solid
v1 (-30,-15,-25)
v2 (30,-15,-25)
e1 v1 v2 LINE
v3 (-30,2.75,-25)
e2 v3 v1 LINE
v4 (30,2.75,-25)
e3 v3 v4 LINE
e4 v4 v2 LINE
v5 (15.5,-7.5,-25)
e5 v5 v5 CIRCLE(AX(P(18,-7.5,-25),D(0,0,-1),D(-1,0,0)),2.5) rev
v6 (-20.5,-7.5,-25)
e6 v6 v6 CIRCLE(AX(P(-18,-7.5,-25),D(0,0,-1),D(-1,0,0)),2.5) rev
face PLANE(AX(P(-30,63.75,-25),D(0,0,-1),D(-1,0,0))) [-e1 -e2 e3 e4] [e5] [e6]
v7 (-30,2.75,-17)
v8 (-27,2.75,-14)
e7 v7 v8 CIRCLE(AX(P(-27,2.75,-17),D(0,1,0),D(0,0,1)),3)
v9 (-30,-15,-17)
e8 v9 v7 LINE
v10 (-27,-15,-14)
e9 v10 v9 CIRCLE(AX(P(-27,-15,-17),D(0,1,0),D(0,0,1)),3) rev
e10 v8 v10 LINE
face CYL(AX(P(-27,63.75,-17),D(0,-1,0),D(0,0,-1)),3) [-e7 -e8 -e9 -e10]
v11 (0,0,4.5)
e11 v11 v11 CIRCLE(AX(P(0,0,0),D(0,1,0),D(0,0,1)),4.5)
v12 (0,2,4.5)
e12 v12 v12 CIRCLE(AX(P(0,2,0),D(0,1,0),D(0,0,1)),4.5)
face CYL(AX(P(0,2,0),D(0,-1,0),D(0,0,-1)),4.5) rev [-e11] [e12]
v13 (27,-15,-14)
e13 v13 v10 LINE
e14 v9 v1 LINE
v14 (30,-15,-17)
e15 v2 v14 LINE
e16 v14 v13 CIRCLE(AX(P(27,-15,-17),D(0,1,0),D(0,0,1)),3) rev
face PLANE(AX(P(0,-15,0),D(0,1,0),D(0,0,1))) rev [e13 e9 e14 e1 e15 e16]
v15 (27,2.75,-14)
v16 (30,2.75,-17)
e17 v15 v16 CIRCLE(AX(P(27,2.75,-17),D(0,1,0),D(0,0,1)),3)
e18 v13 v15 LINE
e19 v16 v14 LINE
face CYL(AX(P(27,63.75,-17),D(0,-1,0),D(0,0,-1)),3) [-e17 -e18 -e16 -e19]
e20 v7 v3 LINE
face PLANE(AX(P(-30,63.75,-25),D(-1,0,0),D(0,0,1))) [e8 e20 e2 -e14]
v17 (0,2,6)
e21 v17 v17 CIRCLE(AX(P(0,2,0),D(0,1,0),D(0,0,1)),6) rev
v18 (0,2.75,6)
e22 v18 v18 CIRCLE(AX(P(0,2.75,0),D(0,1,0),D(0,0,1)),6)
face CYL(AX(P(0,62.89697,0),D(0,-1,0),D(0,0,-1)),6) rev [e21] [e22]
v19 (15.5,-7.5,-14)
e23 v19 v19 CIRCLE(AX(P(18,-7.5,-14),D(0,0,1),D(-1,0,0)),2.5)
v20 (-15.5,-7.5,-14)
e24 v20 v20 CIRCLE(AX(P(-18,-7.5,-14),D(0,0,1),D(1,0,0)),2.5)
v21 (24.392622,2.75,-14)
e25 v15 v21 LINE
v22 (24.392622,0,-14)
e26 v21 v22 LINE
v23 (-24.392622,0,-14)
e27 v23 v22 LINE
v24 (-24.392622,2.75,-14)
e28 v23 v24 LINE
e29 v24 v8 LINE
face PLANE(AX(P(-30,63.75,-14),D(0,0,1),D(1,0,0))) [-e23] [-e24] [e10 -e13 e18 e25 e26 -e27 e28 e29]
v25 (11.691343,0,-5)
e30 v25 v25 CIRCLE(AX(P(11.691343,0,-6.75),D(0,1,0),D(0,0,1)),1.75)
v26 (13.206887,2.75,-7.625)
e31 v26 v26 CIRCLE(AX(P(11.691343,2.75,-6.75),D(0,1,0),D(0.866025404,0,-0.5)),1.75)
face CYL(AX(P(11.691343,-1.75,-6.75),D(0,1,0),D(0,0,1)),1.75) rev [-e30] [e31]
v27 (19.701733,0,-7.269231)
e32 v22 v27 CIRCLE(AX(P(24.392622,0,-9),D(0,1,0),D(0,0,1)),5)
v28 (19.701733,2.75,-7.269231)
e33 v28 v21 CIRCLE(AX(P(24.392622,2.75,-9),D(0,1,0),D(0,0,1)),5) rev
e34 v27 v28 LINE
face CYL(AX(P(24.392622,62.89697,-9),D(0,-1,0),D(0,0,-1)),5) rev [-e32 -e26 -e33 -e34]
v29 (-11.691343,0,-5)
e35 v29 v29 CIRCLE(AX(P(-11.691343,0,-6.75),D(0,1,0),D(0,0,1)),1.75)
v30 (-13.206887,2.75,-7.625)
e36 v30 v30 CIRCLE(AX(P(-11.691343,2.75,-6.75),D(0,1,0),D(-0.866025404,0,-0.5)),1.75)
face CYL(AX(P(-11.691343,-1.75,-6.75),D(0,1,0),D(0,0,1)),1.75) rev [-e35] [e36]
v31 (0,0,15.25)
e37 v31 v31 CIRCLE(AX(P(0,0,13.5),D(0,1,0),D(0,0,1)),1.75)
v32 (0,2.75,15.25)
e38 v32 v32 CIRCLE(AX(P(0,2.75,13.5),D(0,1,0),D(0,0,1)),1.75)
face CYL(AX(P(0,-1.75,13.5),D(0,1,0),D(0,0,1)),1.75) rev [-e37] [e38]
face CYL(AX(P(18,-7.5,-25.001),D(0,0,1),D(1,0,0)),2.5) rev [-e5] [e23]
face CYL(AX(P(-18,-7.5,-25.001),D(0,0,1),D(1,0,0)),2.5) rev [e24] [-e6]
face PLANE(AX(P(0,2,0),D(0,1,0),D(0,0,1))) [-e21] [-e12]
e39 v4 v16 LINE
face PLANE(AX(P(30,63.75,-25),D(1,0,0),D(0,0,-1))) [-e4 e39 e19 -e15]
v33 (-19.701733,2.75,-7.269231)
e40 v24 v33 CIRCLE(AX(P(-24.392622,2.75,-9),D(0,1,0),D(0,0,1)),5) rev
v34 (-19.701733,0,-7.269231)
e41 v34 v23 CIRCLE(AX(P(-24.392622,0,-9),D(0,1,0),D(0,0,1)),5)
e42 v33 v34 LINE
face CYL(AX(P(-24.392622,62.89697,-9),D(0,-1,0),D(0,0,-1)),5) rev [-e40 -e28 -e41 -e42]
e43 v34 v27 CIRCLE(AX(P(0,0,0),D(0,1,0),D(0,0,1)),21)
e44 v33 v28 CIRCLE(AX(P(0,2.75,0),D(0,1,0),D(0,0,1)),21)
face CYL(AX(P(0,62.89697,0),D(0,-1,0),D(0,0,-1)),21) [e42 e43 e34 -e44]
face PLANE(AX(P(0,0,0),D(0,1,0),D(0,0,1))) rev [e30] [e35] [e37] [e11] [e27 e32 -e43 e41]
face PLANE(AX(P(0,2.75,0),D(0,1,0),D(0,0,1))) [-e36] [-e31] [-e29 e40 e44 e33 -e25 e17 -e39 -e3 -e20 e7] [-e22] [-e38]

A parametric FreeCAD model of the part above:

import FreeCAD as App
import Part
import Sketcher

V = App.Vector
Q = App.Units.Quantity


def edges_at(feature, points):
    """Names of the edges that pass closest to the given points."""
    edges = feature.Shape.Edges
    near = lambda p: min(range(len(edges)), key=lambda i: edges[i].distToShape(Part.Vertex(*p))[0])
    return sorted({f"Edge{near(p) + 1}" for p in points})

doc = App.newDocument("Part")
body = doc.addObject("PartDesign::Body", "Body")

# Sketch on XZ plane
sketch1 = body.newObject("Sketcher::SketchObject", "Sketch")
sketch1.AttachmentSupport = (doc.getObject("XZ_Plane"), [""])
sketch1.MapMode = "FlatFace"
sketch1.addGeometry([
    Part.Circle(V(0, 0, 0), V(0, 0, 1), 6),
    Part.Circle(V(0, 0, 0), V(0, 0, 1), 4.5),
], False)
sketch1.addConstraint([
    Sketcher.Constraint("Coincident", 0, 3, -1, 1),
    Sketcher.Constraint("Coincident", 1, 3, -1, 1),
    Sketcher.Constraint("Diameter", 0, Q("12 mm")),
    Sketcher.Constraint("Diameter", 1, Q("9 mm")),
])
pad1 = body.newObject("PartDesign::Pad", "Pad")
pad1.Profile = sketch1
pad1.Length = 2
pad1.Reversed = True

# Sketch on XZ plane
sketch2 = body.newObject("Sketcher::SketchObject", "Sketch001")
sketch2.AttachmentSupport = (doc.getObject("XZ_Plane"), [""])
sketch2.MapMode = "FlatFace"
sketch2.addGeometry([
    Part.Circle(V(0, 0, 0), V(0, 0, 1), 21),
    Part.Circle(V(0, 0, 0), V(0, 0, 1), 6),
], False)
sketch2.addConstraint([
    Sketcher.Constraint("Coincident", 0, 3, -1, 1),
    Sketcher.Constraint("Coincident", 1, 3, -1, 1),
    Sketcher.Constraint("Diameter", 0, Q("42 mm")),
    Sketcher.Constraint("Diameter", 1, Q("12 mm")),
])
pad2 = body.newObject("PartDesign::Pad", "Pad001")
pad2.Profile = sketch2
pad2.Length = 2.75
pad2.Reversed = True

# Sketch on XZ plane
sketch3 = body.newObject("Sketcher::SketchObject", "Sketch002")
sketch3.AttachmentSupport = (doc.getObject("XZ_Plane"), [""])
sketch3.MapMode = "FlatFace"
sketch3.AttachmentOffset = App.Placement(V(0, 0, -2.75), App.Rotation())
sketch3.addGeometry(Part.Circle(V(0, 13.5, 0), V(0, 0, 1), 1.8), False)
sketch3.addConstraint([
    Sketcher.Constraint("PointOnObject", 0, 3, -2),
    Sketcher.Constraint("Diameter", 0, Q("3.5 mm")),
    Sketcher.Constraint("DistanceY", -1, 1, 0, 3, Q("13.5 mm")),
])
pocket1 = body.newObject("PartDesign::Pocket", "Pocket")
pocket1.Profile = sketch3
pocket1.Length = 4.5
pocket1.Reversed = True
doc.recompute()

polarpattern = body.newObject("PartDesign::PolarPattern", "PolarPattern")
polarpattern.Originals = [pocket1]
polarpattern.Axis = (doc.getObject("Y_Axis"), [""])
polarpattern.Angle = 360
polarpattern.Occurrences = 3
body.Tip = polarpattern

# Sketch on XZ plane
sketch4 = body.newObject("Sketcher::SketchObject", "Sketch003")
sketch4.AttachmentSupport = (doc.getObject("XZ_Plane"), [""])
sketch4.MapMode = "FlatFace"
sketch4.addGeometry([
    Part.LineSegment(V(-30, -14, 0), V(-30, -25, 0)),
    Part.LineSegment(V(-30, -25, 0), V(30, -25, 0)),
    Part.LineSegment(V(30, -25, 0), V(30, -14, 0)),
    Part.LineSegment(V(30, -14, 0), V(-30, -14, 0)),
], False)
sketch4.addConstraint([
    Sketcher.Constraint("Coincident", 0, 2, 1, 1),
    Sketcher.Constraint("Coincident", 1, 2, 2, 1),
    Sketcher.Constraint("Coincident", 2, 2, 3, 1),
    Sketcher.Constraint("Coincident", 3, 2, 0, 1),
    Sketcher.Constraint("Vertical", 0),
    Sketcher.Constraint("Horizontal", 1),
    Sketcher.Constraint("Vertical", 2),
    Sketcher.Constraint("Horizontal", 3),
    Sketcher.Constraint("DistanceX", 1, 1, 1, 2, Q("60 mm")),
    Sketcher.Constraint("DistanceY", 0, 2, 0, 1, Q("11 mm")),
    Sketcher.Constraint("DistanceX", 0, 2, -1, 1, Q("30 mm")),
    Sketcher.Constraint("DistanceY", 0, 2, -1, 1, Q("25 mm")),
])
pad3 = body.newObject("PartDesign::Pad", "Pad002")
pad3.Profile = sketch4
pad3.Type = "TwoLengths"
pad3.Length = 15
pad3.Length2 = 2.75

# Sketch on XY plane
sketch5 = body.newObject("Sketcher::SketchObject", "Sketch004")
sketch5.AttachmentSupport = (doc.getObject("XY_Plane"), [""])
sketch5.MapMode = "FlatFace"
sketch5.AttachmentOffset = App.Placement(V(0, 0, -14), App.Rotation())
sketch5.addGeometry(Part.Circle(V(-18, -7.5, 0), V(0, 0, 1), 2.5), False)
sketch5.addConstraint([
    Sketcher.Constraint("Diameter", 0, Q("5 mm")),
    Sketcher.Constraint("DistanceX", 0, 3, -1, 1, Q("18 mm")),
    Sketcher.Constraint("DistanceY", 0, 3, -1, 1, Q("7.5 mm")),
])
pocket2 = body.newObject("PartDesign::Pocket", "Pocket001")
pocket2.Profile = sketch5
pocket2.Type = "UpToFirst"

# Sketch on XY plane
sketch6 = body.newObject("Sketcher::SketchObject", "Sketch005")
sketch6.AttachmentSupport = (doc.getObject("XY_Plane"), [""])
sketch6.MapMode = "FlatFace"
sketch6.AttachmentOffset = App.Placement(V(0, 0, -14), App.Rotation())
sketch6.addGeometry(Part.Circle(V(18, -7.5, 0), V(0, 0, 1), 2.5), False)
sketch6.addConstraint([
    Sketcher.Constraint("Diameter", 0, Q("5 mm")),
    Sketcher.Constraint("DistanceX", -1, 1, 0, 3, Q("18 mm")),
    Sketcher.Constraint("DistanceY", 0, 3, -1, 1, Q("7.5 mm")),
])
pocket3 = body.newObject("PartDesign::Pocket", "Pocket002")
pocket3.Profile = sketch6
pocket3.Type = "UpToFirst"
doc.recompute()

fillet = body.newObject("PartDesign::Fillet", "Fillet")
fillet.Base = (pocket3, edges_at(pocket3, [(-30, -6.125, -14), (30, -6.125, -14)]))
fillet.Radius = 3
doc.recompute()

fillet2 = body.newObject("PartDesign::Fillet", "Fillet001")
fillet2.Base = (fillet, edges_at(fillet, [(-15.652, 1.375, -14), (15.652, 1.375, -14)]))
fillet2.Radius = 5

doc.recompute()
